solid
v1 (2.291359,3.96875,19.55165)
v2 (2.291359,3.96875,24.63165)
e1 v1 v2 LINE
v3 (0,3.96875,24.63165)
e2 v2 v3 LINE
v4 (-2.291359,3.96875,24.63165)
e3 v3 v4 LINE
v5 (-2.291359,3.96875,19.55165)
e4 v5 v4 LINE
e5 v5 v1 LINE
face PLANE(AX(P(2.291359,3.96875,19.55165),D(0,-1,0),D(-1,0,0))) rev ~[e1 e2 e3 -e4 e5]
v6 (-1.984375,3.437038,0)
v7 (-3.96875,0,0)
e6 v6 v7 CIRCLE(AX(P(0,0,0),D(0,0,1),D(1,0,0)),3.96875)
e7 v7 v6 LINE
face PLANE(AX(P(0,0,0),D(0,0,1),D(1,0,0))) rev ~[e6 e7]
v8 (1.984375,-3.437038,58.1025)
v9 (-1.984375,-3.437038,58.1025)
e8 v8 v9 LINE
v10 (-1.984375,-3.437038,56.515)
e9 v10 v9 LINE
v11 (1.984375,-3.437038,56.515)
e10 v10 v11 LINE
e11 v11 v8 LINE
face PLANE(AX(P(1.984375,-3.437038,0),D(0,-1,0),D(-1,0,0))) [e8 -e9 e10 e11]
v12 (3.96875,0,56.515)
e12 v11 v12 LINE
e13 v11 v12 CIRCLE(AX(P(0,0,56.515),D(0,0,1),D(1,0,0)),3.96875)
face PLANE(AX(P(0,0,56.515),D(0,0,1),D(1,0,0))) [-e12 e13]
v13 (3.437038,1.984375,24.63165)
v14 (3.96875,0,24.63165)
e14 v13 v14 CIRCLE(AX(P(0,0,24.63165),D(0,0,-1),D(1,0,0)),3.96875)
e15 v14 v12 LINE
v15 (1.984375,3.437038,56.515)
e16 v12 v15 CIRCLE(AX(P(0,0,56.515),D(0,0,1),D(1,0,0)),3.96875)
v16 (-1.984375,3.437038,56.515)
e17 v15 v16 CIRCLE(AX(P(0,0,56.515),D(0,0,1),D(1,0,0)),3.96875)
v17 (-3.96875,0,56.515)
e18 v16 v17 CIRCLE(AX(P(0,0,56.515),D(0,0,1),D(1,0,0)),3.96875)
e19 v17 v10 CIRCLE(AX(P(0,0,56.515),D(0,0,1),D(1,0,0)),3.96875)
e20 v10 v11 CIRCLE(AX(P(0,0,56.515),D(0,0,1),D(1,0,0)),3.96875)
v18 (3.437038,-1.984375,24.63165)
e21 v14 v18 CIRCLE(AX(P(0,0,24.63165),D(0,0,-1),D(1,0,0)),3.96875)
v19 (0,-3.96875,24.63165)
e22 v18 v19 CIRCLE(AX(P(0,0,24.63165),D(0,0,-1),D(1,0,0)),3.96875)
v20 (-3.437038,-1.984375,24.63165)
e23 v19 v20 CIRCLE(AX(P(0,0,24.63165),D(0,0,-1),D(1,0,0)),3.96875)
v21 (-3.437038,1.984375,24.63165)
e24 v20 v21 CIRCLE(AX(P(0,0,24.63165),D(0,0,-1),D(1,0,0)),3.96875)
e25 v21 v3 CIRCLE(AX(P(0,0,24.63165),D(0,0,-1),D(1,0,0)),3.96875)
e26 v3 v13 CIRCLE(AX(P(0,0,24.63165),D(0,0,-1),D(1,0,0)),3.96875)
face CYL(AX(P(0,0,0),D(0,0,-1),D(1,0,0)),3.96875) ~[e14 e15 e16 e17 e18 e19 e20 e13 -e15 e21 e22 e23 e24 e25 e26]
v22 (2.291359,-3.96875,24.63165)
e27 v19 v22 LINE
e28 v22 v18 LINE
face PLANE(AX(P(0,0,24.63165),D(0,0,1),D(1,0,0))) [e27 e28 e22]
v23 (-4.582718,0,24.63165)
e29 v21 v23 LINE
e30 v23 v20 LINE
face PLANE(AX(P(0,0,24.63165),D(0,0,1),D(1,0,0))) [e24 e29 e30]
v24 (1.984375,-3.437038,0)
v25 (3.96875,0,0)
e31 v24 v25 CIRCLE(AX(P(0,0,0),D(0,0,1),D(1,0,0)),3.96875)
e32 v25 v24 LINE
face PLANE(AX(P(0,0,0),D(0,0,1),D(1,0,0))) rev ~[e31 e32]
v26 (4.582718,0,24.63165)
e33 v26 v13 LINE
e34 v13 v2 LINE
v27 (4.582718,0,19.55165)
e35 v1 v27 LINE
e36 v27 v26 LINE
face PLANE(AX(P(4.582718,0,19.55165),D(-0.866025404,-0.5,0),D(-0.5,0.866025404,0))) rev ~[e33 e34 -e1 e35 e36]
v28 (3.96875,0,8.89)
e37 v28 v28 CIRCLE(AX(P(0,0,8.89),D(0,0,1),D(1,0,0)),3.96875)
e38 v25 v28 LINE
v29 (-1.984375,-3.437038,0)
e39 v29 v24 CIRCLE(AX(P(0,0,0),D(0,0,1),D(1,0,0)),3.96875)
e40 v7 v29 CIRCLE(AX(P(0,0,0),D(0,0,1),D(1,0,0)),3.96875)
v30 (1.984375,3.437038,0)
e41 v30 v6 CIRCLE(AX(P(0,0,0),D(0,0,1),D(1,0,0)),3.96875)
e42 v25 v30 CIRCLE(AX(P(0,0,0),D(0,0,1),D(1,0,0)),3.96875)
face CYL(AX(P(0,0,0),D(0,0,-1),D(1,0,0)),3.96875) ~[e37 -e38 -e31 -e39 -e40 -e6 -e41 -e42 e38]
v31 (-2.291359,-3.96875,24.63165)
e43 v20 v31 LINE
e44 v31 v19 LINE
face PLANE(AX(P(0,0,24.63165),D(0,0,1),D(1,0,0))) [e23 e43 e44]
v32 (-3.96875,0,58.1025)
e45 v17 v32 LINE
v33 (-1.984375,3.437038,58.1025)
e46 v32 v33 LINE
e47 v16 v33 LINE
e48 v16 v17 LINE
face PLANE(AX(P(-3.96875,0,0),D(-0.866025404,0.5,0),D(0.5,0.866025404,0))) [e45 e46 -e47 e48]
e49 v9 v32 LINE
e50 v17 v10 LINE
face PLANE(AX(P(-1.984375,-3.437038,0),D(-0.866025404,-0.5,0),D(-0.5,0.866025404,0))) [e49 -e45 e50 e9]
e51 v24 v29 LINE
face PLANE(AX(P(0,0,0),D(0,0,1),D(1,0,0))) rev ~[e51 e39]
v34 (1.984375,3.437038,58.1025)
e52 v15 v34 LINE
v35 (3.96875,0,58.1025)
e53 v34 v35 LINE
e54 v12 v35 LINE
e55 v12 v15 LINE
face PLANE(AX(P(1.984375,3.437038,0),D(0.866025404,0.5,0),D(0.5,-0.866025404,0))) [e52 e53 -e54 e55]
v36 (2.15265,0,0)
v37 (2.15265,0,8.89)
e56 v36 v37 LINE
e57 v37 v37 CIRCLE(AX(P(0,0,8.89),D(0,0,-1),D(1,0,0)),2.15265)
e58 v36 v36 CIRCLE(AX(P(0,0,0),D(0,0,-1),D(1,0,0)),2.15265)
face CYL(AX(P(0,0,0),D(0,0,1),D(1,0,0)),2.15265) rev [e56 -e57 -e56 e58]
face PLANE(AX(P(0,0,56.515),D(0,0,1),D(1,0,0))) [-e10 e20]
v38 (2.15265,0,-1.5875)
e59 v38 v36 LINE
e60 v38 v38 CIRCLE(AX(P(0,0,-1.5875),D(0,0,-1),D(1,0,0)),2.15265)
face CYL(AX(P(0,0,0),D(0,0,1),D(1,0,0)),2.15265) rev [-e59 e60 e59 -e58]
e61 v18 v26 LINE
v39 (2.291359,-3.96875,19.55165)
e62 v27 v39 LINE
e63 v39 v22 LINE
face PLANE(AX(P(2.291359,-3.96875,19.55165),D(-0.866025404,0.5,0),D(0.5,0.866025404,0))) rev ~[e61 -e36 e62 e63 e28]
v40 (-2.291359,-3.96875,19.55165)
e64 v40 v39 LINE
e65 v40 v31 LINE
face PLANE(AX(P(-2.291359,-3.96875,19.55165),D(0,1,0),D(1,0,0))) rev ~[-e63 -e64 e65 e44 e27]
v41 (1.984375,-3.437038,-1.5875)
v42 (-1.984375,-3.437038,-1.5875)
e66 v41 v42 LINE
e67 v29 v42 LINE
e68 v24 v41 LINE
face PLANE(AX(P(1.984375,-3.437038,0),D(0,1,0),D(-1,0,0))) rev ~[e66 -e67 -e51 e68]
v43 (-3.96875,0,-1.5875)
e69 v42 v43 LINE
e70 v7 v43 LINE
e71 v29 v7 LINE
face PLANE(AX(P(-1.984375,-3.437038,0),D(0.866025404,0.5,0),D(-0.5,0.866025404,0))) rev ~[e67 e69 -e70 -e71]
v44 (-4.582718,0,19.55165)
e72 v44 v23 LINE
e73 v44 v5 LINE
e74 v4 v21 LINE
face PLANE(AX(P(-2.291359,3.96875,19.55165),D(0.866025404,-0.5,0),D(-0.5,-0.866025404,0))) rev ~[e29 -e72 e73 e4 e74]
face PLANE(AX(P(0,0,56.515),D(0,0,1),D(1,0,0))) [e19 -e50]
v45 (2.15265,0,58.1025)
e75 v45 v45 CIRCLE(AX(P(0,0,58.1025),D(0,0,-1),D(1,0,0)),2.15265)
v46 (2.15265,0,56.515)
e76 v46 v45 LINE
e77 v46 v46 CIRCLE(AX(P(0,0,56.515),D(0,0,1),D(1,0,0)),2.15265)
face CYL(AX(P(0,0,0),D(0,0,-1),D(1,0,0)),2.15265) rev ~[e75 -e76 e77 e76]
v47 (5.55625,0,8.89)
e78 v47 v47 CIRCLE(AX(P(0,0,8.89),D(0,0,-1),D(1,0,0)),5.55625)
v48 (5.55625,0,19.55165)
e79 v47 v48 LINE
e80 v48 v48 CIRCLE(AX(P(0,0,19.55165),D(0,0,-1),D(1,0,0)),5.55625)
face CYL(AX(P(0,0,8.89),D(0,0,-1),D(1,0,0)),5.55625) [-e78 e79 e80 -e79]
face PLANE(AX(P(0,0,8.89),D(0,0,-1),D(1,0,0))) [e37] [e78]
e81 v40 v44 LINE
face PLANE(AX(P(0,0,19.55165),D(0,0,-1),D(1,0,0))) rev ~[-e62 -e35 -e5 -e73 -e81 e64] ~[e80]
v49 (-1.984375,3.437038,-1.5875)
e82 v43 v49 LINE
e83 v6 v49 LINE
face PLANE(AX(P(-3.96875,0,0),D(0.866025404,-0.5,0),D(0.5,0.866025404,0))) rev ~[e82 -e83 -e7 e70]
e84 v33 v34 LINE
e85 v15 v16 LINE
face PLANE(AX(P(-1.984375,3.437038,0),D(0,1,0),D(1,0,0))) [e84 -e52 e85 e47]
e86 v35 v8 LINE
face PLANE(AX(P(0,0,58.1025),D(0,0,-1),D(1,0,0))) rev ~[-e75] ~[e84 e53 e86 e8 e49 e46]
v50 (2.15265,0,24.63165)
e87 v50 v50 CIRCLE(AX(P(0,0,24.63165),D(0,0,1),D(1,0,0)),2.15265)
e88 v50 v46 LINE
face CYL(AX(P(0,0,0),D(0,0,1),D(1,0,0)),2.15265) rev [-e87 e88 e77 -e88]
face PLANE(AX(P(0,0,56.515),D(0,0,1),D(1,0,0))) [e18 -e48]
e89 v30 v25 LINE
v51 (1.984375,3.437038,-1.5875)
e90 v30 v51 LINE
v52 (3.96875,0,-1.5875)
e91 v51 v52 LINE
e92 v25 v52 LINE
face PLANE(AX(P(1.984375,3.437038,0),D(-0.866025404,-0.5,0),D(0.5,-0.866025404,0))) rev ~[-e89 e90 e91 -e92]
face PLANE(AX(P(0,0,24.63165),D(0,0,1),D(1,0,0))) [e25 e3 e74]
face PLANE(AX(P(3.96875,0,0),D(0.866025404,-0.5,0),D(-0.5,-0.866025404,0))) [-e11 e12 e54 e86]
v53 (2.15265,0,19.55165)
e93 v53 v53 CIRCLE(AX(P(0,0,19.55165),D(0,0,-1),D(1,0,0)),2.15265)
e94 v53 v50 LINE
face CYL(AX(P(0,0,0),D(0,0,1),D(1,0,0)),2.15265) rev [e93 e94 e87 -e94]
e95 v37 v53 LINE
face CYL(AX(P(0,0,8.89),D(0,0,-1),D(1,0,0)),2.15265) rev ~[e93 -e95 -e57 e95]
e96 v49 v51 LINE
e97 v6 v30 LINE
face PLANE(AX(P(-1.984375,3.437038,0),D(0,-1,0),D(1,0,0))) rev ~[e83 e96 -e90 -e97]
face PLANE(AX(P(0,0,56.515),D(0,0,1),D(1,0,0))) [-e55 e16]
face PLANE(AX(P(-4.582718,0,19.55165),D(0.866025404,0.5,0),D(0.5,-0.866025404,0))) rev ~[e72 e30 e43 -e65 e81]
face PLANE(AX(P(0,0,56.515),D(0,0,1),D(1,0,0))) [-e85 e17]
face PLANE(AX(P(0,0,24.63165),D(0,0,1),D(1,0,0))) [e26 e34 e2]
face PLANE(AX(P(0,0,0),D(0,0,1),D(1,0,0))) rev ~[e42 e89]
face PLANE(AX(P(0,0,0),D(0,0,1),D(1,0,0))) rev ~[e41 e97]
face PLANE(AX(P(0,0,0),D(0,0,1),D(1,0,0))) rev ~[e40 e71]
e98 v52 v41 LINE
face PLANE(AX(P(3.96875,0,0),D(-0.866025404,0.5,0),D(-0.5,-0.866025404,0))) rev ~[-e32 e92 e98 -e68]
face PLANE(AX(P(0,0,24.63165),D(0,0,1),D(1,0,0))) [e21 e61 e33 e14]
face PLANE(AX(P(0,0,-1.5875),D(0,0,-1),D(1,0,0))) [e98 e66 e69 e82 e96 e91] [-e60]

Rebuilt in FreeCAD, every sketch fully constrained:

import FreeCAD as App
import Part
import Sketcher

V = App.Vector
Q = App.Units.Quantity


def add_polygon(sketch, points):
    """Adds a closed chain of lines whose ends are joined by coincident constraints."""
    first, n = sketch.GeometryCount, len(points)
    for a, b in zip(points, points[1:] + points[:1]):
        sketch.addGeometry(Part.LineSegment(App.Vector(*a, 0), App.Vector(*b, 0)), False)
    for i in range(n):
        sketch.addConstraint(Sketcher.Constraint("Coincident", first + i, 2, first + (i + 1) % n, 1))

doc = App.newDocument("Part")
body = doc.addObject("PartDesign::Body", "Body")

# Sketch on XY plane
sketch1 = doc.addObject("Sketcher::SketchObject", "Sketch")
body.addObject(sketch1)
sketch1.AttachmentSupport = (doc.XY_Plane, [""])
sketch1.MapMode = "FlatFace"
sketch1.addGeometry(Part.Circle(V(0, 0, 0), V(0, 0, 1), 3.96875), False)
sketch1.addGeometry(Part.Circle(V(0, 0, 0), V(0, 0, 1), 2.15265), False)
sketch1.addConstraint(Sketcher.Constraint("Coincident", 0, 3, -1, 1))
sketch1.addConstraint(Sketcher.Constraint("Coincident", 1, 3, -1, 1))
sketch1.addConstraint(Sketcher.Constraint("Diameter", 0, Q("0.3125 in")))
sketch1.addConstraint(Sketcher.Constraint("Diameter", 1, Q("0.1695 in")))
pad1 = doc.addObject("PartDesign::Pad", "Pad")
body.addObject(pad1)
pad1.Profile = sketch1
pad1.Length = Q("2.225 in")

# Sketch on XY plane
sketch2 = doc.addObject("Sketcher::SketchObject", "Sketch001")
body.addObject(sketch2)
sketch2.AttachmentSupport = (doc.XY_Plane, [""])
sketch2.MapMode = "FlatFace"
add_polygon(sketch2, [(-1.984375, 3.437038), (1.984375, 3.437038), (3.96875, 0), (1.984375, -3.437038), (-1.984375, -3.437038), (-3.96875, 0)])  # lines 0-5
sketch2.addGeometry(Part.Circle(V(0, 0, 0), V(0, 0, 1), 2.15265), False)  # 6
sketch2.addConstraint(Sketcher.Constraint("Horizontal", 0))
sketch2.addConstraint(Sketcher.Constraint("Horizontal", 3))
sketch2.addConstraint(Sketcher.Constraint("Coincident", 6, 3, -1, 1))
sketch2.addConstraint(Sketcher.Constraint("Symmetric", 0, 2, 3, 2, -1, 1))
sketch2.addConstraint(Sketcher.Constraint("Symmetric", 1, 2, 4, 2, -1, 1))
sketch2.addConstraint(Sketcher.Constraint("PointOnObject", 1, 2, -1))
sketch2.addConstraint(Sketcher.Constraint("Parallel", 2, 5))
sketch2.addConstraint(Sketcher.Constraint("Vertical", 0, 2, 2, 2))
sketch2.addConstraint(Sketcher.Constraint("Angle", 1, Q("-60 deg")))
sketch2.addConstraint(Sketcher.Constraint("Diameter", 6, Q("0.1695 in")))
sketch2.addConstraint(Sketcher.Constraint("DistanceX", 0, 1, 0, 2, Q("0.15625 in")))
sketch2.addConstraint(Sketcher.Constraint("Distance", 1, Q("0.15625 in")))
pad2 = doc.addObject("PartDesign::Pad", "Pad001")
body.addObject(pad2)
pad2.Profile = sketch2
pad2.Type = "TwoLengths"
pad2.Length = Q("0.0625 in")
pad2.Length2 = Q("2.2875 in")
pad2.Reversed = True

# Sketch on XY plane
sketch3 = doc.addObject("Sketcher::SketchObject", "Sketch002")
body.addObject(sketch3)
sketch3.AttachmentSupport = (doc.XY_Plane, [""])
sketch3.MapMode = "FlatFace"
sketch3.AttachmentOffset = App.Placement(V(0, 0, 0.35 * 25.4), App.Rotation())
sketch3.addGeometry(Part.Circle(V(0, 0, 0), V(0, 0, 1), 5.55625), False)
sketch3.addGeometry(Part.Circle(V(0, 0, 0), V(0, 0, 1), 2.15265), False)
sketch3.addConstraint(Sketcher.Constraint("Coincident", 0, 3, -1, 1))
sketch3.addConstraint(Sketcher.Constraint("Coincident", 1, 3, -1, 1))
sketch3.addConstraint(Sketcher.Constraint("Diameter", 0, Q("0.4375 in")))
sketch3.addConstraint(Sketcher.Constraint("Diameter", 1, Q("0.1695 in")))
pad3 = doc.addObject("PartDesign::Pad", "Pad002")
body.addObject(pad3)
pad3.Profile = sketch3
pad3.Length = 10.66165

# Sketch on XY plane
sketch4 = doc.addObject("Sketcher::SketchObject", "Sketch003")
body.addObject(sketch4)
sketch4.AttachmentSupport = (doc.XY_Plane, [""])
sketch4.MapMode = "FlatFace"
sketch4.AttachmentOffset = App.Placement(V(0, 0, 19.55165), App.Rotation())
add_polygon(sketch4, [(-2.291359, -3.96875), (2.291359, -3.96875), (4.582718, 0), (2.291359, 3.96875), (-2.291359, 3.96875), (-4.582718, 0)])  # lines 0-5
sketch4.addGeometry(Part.Circle(V(0, 0, 0), V(0, 0, 1), 2.15265), False)  # 6
sketch4.addConstraint(Sketcher.Constraint("Horizontal", 0))
sketch4.addConstraint(Sketcher.Constraint("Horizontal", 3))
sketch4.addConstraint(Sketcher.Constraint("Coincident", 6, 3, -1, 1))
sketch4.addConstraint(Sketcher.Constraint("Symmetric", 0, 2, 3, 2, -1, 1))
sketch4.addConstraint(Sketcher.Constraint("Symmetric", 1, 2, 4, 2, -1, 1))
sketch4.addConstraint(Sketcher.Constraint("PointOnObject", 1, 2, -1))
sketch4.addConstraint(Sketcher.Constraint("Parallel", 2, 5))
sketch4.addConstraint(Sketcher.Constraint("Vertical", 0, 2, 2, 2))
sketch4.addConstraint(Sketcher.Constraint("Angle", 1, Q("60 deg")))
sketch4.addConstraint(Sketcher.Constraint("Diameter", 6, Q("0.1695 in")))
sketch4.addConstraint(Sketcher.Constraint("DistanceY", 0, 2, -1, 1, Q("0.15625 in")))
sketch4.addConstraint(Sketcher.Constraint("DistanceX", 0, 1, 0, 2, Q("4.582718 mm")))
pad4 = doc.addObject("PartDesign::Pad", "Pad003")
body.addObject(pad4)
pad4.Profile = sketch4
pad4.Length = Q("0.2 in")

doc.recompute()
